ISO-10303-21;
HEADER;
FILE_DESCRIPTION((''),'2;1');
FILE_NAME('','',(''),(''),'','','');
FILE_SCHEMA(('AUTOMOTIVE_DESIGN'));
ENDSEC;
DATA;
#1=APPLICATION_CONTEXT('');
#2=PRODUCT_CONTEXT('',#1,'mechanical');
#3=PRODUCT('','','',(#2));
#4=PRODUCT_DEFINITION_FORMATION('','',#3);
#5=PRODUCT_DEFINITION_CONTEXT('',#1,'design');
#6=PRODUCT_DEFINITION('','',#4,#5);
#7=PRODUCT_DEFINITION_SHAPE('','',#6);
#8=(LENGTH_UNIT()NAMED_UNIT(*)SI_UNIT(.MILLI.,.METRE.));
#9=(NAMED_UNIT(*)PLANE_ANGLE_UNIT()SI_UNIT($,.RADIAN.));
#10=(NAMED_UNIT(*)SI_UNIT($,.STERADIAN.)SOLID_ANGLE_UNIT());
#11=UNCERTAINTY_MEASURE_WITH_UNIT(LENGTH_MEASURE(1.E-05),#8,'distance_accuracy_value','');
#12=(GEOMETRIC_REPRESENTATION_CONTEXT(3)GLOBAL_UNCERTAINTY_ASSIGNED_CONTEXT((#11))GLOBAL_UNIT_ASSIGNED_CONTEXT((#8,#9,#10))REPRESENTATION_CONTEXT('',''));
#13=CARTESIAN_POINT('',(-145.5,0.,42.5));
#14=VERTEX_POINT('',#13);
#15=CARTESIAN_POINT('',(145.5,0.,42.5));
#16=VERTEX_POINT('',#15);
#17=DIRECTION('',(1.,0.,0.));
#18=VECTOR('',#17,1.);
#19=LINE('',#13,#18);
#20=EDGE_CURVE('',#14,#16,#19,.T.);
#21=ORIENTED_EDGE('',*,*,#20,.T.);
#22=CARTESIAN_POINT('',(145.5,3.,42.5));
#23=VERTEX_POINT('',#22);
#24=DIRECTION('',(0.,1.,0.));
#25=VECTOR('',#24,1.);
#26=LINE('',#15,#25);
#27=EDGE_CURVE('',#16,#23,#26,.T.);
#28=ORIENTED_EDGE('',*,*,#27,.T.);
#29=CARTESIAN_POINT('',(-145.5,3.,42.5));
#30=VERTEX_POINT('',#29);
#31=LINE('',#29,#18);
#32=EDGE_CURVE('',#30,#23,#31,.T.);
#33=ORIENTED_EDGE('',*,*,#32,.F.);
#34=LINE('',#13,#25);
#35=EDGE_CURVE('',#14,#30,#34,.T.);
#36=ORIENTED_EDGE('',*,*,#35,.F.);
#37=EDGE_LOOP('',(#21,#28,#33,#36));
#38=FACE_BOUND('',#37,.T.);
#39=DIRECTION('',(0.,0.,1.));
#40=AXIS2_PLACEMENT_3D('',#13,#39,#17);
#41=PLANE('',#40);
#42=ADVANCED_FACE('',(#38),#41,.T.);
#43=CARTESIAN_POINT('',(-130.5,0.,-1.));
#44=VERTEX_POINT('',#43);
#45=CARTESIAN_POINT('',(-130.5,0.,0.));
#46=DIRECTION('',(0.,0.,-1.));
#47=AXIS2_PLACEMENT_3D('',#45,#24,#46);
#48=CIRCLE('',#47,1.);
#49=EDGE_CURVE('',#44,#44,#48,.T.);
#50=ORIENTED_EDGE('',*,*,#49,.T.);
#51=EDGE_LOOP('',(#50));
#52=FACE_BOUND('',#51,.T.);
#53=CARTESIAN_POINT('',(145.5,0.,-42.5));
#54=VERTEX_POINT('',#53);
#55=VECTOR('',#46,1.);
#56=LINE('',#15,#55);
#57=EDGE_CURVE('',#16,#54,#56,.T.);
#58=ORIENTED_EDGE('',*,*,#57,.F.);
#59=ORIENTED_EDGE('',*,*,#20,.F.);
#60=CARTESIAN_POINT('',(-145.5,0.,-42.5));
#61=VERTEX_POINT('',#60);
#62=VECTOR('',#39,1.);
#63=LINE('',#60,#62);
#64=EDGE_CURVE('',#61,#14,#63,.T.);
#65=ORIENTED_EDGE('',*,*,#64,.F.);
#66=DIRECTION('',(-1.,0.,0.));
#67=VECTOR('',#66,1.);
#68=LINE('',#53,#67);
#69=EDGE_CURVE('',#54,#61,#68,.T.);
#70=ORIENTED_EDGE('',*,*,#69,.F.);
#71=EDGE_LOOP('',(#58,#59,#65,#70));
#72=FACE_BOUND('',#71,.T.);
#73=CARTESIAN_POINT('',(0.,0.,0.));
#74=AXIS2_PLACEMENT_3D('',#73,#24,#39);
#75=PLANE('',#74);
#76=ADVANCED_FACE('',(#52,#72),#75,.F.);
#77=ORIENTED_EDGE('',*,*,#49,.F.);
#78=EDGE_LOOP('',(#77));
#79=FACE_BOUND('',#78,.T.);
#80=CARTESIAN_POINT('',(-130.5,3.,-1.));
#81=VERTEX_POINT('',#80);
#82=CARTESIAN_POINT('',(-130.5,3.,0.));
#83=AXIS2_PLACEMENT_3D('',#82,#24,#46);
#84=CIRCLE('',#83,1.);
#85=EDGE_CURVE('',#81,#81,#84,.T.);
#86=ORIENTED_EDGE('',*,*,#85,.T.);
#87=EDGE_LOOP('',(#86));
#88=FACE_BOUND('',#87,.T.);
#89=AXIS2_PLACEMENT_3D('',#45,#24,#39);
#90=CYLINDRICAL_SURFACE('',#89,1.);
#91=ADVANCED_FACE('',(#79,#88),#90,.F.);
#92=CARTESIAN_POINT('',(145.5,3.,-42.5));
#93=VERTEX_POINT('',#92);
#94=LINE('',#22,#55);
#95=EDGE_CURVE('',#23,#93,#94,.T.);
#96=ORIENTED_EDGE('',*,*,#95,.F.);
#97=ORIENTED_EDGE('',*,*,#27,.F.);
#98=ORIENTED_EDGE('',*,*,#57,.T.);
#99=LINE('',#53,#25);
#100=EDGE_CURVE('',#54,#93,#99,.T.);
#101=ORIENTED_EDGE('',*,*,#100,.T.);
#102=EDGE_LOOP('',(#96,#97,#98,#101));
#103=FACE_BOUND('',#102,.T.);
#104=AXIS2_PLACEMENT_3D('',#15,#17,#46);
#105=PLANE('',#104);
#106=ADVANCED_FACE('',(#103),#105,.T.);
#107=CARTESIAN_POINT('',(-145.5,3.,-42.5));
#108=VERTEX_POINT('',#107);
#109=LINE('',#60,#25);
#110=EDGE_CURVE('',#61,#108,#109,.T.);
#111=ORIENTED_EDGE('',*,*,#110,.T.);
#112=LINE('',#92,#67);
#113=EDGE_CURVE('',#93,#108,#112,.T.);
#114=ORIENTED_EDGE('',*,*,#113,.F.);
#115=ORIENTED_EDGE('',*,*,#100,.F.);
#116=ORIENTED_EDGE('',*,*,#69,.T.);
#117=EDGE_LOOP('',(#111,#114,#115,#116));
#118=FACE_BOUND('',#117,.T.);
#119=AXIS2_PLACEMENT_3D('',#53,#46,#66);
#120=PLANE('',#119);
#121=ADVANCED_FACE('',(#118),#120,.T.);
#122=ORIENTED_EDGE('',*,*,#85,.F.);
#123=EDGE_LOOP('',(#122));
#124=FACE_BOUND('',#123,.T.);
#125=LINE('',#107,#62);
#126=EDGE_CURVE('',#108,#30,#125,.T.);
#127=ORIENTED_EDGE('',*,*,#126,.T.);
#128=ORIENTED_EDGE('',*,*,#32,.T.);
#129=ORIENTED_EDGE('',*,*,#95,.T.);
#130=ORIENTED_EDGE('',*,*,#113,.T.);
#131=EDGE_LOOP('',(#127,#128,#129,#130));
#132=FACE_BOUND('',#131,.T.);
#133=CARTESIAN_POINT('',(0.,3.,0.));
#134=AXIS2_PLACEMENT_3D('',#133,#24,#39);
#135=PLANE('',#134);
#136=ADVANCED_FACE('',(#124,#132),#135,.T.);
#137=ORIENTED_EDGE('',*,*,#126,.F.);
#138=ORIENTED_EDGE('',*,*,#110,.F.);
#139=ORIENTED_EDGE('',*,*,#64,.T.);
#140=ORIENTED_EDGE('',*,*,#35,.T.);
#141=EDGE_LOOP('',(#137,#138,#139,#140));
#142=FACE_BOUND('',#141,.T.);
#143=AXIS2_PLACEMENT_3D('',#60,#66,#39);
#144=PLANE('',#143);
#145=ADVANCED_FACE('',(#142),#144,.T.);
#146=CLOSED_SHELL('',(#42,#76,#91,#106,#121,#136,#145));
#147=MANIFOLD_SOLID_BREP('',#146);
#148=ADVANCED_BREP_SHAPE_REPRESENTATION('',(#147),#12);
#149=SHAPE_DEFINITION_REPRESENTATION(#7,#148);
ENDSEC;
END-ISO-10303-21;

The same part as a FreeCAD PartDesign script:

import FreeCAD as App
import Part
import Sketcher

V = App.Vector
Q = App.Units.Quantity

doc = App.newDocument("Part")
body = doc.addObject("PartDesign::Body", "Body")

sketch1 = doc.addObject("Sketcher::SketchObject", "Sketch")
body.addObject(sketch1)
sketch1.AttachmentSupport = (doc.XZ_Plane, [""])
sketch1.MapMode = "FlatFace"
sketch1.AttachmentOffset = App.Placement(V(0, 0, -3), App.Rotation())
sketch1.addGeometry(Part.LineSegment(V(-145.5, -42.5, 0), V(-145.5, 42.5, 0)), False)
sketch1.addGeometry(Part.LineSegment(V(-145.5, 42.5, 0), V(145.5, 42.5, 0)), False)
sketch1.addGeometry(Part.LineSegment(V(145.5, 42.5, 0), V(145.5, -42.5, 0)), False)
sketch1.addGeometry(Part.LineSegment(V(145.5, -42.5, 0), V(-145.5, -42.5, 0)), False)
sketch1.addGeometry(Part.Circle(V(-130.5, 0, 0), V(0, 0, 1), 1), False)
sketch1.addConstraint(Sketcher.Constraint("Coincident", 0, 2, 1, 1))
sketch1.addConstraint(Sketcher.Constraint("Coincident", 1, 2, 2, 1))
sketch1.addConstraint(Sketcher.Constraint("Coincident", 2, 2, 3, 1))
sketch1.addConstraint(Sketcher.Constraint("Coincident", 3, 2, 0, 1))
sketch1.addConstraint(Sketcher.Constraint("Vertical", 0))
sketch1.addConstraint(Sketcher.Constraint("Horizontal", 1))
sketch1.addConstraint(Sketcher.Constraint("Vertical", 2))
sketch1.addConstraint(Sketcher.Constraint("Horizontal", 3))
sketch1.addConstraint(Sketcher.Constraint("Symmetric", 0, 2, 2, 2, -1, 1))
sketch1.addConstraint(Sketcher.Constraint("PointOnObject", 4, 3, -1))
sketch1.addConstraint(Sketcher.Constraint("Diameter", 4, Q("2 mm")))
sketch1.addConstraint(Sketcher.Constraint("DistanceX", 1, 1, 1, 2, Q("291 mm")))
sketch1.addConstraint(Sketcher.Constraint("DistanceY", 0, 1, 0, 2, Q("85 mm")))
sketch1.addConstraint(Sketcher.Constraint("DistanceX", 0, 2, 4, 3, Q("15 mm")))
pad1 = doc.addObject("PartDesign::Pad", "Pad")
body.addObject(pad1)
pad1.Profile = sketch1
pad1.Length = 3

doc.recompute()
